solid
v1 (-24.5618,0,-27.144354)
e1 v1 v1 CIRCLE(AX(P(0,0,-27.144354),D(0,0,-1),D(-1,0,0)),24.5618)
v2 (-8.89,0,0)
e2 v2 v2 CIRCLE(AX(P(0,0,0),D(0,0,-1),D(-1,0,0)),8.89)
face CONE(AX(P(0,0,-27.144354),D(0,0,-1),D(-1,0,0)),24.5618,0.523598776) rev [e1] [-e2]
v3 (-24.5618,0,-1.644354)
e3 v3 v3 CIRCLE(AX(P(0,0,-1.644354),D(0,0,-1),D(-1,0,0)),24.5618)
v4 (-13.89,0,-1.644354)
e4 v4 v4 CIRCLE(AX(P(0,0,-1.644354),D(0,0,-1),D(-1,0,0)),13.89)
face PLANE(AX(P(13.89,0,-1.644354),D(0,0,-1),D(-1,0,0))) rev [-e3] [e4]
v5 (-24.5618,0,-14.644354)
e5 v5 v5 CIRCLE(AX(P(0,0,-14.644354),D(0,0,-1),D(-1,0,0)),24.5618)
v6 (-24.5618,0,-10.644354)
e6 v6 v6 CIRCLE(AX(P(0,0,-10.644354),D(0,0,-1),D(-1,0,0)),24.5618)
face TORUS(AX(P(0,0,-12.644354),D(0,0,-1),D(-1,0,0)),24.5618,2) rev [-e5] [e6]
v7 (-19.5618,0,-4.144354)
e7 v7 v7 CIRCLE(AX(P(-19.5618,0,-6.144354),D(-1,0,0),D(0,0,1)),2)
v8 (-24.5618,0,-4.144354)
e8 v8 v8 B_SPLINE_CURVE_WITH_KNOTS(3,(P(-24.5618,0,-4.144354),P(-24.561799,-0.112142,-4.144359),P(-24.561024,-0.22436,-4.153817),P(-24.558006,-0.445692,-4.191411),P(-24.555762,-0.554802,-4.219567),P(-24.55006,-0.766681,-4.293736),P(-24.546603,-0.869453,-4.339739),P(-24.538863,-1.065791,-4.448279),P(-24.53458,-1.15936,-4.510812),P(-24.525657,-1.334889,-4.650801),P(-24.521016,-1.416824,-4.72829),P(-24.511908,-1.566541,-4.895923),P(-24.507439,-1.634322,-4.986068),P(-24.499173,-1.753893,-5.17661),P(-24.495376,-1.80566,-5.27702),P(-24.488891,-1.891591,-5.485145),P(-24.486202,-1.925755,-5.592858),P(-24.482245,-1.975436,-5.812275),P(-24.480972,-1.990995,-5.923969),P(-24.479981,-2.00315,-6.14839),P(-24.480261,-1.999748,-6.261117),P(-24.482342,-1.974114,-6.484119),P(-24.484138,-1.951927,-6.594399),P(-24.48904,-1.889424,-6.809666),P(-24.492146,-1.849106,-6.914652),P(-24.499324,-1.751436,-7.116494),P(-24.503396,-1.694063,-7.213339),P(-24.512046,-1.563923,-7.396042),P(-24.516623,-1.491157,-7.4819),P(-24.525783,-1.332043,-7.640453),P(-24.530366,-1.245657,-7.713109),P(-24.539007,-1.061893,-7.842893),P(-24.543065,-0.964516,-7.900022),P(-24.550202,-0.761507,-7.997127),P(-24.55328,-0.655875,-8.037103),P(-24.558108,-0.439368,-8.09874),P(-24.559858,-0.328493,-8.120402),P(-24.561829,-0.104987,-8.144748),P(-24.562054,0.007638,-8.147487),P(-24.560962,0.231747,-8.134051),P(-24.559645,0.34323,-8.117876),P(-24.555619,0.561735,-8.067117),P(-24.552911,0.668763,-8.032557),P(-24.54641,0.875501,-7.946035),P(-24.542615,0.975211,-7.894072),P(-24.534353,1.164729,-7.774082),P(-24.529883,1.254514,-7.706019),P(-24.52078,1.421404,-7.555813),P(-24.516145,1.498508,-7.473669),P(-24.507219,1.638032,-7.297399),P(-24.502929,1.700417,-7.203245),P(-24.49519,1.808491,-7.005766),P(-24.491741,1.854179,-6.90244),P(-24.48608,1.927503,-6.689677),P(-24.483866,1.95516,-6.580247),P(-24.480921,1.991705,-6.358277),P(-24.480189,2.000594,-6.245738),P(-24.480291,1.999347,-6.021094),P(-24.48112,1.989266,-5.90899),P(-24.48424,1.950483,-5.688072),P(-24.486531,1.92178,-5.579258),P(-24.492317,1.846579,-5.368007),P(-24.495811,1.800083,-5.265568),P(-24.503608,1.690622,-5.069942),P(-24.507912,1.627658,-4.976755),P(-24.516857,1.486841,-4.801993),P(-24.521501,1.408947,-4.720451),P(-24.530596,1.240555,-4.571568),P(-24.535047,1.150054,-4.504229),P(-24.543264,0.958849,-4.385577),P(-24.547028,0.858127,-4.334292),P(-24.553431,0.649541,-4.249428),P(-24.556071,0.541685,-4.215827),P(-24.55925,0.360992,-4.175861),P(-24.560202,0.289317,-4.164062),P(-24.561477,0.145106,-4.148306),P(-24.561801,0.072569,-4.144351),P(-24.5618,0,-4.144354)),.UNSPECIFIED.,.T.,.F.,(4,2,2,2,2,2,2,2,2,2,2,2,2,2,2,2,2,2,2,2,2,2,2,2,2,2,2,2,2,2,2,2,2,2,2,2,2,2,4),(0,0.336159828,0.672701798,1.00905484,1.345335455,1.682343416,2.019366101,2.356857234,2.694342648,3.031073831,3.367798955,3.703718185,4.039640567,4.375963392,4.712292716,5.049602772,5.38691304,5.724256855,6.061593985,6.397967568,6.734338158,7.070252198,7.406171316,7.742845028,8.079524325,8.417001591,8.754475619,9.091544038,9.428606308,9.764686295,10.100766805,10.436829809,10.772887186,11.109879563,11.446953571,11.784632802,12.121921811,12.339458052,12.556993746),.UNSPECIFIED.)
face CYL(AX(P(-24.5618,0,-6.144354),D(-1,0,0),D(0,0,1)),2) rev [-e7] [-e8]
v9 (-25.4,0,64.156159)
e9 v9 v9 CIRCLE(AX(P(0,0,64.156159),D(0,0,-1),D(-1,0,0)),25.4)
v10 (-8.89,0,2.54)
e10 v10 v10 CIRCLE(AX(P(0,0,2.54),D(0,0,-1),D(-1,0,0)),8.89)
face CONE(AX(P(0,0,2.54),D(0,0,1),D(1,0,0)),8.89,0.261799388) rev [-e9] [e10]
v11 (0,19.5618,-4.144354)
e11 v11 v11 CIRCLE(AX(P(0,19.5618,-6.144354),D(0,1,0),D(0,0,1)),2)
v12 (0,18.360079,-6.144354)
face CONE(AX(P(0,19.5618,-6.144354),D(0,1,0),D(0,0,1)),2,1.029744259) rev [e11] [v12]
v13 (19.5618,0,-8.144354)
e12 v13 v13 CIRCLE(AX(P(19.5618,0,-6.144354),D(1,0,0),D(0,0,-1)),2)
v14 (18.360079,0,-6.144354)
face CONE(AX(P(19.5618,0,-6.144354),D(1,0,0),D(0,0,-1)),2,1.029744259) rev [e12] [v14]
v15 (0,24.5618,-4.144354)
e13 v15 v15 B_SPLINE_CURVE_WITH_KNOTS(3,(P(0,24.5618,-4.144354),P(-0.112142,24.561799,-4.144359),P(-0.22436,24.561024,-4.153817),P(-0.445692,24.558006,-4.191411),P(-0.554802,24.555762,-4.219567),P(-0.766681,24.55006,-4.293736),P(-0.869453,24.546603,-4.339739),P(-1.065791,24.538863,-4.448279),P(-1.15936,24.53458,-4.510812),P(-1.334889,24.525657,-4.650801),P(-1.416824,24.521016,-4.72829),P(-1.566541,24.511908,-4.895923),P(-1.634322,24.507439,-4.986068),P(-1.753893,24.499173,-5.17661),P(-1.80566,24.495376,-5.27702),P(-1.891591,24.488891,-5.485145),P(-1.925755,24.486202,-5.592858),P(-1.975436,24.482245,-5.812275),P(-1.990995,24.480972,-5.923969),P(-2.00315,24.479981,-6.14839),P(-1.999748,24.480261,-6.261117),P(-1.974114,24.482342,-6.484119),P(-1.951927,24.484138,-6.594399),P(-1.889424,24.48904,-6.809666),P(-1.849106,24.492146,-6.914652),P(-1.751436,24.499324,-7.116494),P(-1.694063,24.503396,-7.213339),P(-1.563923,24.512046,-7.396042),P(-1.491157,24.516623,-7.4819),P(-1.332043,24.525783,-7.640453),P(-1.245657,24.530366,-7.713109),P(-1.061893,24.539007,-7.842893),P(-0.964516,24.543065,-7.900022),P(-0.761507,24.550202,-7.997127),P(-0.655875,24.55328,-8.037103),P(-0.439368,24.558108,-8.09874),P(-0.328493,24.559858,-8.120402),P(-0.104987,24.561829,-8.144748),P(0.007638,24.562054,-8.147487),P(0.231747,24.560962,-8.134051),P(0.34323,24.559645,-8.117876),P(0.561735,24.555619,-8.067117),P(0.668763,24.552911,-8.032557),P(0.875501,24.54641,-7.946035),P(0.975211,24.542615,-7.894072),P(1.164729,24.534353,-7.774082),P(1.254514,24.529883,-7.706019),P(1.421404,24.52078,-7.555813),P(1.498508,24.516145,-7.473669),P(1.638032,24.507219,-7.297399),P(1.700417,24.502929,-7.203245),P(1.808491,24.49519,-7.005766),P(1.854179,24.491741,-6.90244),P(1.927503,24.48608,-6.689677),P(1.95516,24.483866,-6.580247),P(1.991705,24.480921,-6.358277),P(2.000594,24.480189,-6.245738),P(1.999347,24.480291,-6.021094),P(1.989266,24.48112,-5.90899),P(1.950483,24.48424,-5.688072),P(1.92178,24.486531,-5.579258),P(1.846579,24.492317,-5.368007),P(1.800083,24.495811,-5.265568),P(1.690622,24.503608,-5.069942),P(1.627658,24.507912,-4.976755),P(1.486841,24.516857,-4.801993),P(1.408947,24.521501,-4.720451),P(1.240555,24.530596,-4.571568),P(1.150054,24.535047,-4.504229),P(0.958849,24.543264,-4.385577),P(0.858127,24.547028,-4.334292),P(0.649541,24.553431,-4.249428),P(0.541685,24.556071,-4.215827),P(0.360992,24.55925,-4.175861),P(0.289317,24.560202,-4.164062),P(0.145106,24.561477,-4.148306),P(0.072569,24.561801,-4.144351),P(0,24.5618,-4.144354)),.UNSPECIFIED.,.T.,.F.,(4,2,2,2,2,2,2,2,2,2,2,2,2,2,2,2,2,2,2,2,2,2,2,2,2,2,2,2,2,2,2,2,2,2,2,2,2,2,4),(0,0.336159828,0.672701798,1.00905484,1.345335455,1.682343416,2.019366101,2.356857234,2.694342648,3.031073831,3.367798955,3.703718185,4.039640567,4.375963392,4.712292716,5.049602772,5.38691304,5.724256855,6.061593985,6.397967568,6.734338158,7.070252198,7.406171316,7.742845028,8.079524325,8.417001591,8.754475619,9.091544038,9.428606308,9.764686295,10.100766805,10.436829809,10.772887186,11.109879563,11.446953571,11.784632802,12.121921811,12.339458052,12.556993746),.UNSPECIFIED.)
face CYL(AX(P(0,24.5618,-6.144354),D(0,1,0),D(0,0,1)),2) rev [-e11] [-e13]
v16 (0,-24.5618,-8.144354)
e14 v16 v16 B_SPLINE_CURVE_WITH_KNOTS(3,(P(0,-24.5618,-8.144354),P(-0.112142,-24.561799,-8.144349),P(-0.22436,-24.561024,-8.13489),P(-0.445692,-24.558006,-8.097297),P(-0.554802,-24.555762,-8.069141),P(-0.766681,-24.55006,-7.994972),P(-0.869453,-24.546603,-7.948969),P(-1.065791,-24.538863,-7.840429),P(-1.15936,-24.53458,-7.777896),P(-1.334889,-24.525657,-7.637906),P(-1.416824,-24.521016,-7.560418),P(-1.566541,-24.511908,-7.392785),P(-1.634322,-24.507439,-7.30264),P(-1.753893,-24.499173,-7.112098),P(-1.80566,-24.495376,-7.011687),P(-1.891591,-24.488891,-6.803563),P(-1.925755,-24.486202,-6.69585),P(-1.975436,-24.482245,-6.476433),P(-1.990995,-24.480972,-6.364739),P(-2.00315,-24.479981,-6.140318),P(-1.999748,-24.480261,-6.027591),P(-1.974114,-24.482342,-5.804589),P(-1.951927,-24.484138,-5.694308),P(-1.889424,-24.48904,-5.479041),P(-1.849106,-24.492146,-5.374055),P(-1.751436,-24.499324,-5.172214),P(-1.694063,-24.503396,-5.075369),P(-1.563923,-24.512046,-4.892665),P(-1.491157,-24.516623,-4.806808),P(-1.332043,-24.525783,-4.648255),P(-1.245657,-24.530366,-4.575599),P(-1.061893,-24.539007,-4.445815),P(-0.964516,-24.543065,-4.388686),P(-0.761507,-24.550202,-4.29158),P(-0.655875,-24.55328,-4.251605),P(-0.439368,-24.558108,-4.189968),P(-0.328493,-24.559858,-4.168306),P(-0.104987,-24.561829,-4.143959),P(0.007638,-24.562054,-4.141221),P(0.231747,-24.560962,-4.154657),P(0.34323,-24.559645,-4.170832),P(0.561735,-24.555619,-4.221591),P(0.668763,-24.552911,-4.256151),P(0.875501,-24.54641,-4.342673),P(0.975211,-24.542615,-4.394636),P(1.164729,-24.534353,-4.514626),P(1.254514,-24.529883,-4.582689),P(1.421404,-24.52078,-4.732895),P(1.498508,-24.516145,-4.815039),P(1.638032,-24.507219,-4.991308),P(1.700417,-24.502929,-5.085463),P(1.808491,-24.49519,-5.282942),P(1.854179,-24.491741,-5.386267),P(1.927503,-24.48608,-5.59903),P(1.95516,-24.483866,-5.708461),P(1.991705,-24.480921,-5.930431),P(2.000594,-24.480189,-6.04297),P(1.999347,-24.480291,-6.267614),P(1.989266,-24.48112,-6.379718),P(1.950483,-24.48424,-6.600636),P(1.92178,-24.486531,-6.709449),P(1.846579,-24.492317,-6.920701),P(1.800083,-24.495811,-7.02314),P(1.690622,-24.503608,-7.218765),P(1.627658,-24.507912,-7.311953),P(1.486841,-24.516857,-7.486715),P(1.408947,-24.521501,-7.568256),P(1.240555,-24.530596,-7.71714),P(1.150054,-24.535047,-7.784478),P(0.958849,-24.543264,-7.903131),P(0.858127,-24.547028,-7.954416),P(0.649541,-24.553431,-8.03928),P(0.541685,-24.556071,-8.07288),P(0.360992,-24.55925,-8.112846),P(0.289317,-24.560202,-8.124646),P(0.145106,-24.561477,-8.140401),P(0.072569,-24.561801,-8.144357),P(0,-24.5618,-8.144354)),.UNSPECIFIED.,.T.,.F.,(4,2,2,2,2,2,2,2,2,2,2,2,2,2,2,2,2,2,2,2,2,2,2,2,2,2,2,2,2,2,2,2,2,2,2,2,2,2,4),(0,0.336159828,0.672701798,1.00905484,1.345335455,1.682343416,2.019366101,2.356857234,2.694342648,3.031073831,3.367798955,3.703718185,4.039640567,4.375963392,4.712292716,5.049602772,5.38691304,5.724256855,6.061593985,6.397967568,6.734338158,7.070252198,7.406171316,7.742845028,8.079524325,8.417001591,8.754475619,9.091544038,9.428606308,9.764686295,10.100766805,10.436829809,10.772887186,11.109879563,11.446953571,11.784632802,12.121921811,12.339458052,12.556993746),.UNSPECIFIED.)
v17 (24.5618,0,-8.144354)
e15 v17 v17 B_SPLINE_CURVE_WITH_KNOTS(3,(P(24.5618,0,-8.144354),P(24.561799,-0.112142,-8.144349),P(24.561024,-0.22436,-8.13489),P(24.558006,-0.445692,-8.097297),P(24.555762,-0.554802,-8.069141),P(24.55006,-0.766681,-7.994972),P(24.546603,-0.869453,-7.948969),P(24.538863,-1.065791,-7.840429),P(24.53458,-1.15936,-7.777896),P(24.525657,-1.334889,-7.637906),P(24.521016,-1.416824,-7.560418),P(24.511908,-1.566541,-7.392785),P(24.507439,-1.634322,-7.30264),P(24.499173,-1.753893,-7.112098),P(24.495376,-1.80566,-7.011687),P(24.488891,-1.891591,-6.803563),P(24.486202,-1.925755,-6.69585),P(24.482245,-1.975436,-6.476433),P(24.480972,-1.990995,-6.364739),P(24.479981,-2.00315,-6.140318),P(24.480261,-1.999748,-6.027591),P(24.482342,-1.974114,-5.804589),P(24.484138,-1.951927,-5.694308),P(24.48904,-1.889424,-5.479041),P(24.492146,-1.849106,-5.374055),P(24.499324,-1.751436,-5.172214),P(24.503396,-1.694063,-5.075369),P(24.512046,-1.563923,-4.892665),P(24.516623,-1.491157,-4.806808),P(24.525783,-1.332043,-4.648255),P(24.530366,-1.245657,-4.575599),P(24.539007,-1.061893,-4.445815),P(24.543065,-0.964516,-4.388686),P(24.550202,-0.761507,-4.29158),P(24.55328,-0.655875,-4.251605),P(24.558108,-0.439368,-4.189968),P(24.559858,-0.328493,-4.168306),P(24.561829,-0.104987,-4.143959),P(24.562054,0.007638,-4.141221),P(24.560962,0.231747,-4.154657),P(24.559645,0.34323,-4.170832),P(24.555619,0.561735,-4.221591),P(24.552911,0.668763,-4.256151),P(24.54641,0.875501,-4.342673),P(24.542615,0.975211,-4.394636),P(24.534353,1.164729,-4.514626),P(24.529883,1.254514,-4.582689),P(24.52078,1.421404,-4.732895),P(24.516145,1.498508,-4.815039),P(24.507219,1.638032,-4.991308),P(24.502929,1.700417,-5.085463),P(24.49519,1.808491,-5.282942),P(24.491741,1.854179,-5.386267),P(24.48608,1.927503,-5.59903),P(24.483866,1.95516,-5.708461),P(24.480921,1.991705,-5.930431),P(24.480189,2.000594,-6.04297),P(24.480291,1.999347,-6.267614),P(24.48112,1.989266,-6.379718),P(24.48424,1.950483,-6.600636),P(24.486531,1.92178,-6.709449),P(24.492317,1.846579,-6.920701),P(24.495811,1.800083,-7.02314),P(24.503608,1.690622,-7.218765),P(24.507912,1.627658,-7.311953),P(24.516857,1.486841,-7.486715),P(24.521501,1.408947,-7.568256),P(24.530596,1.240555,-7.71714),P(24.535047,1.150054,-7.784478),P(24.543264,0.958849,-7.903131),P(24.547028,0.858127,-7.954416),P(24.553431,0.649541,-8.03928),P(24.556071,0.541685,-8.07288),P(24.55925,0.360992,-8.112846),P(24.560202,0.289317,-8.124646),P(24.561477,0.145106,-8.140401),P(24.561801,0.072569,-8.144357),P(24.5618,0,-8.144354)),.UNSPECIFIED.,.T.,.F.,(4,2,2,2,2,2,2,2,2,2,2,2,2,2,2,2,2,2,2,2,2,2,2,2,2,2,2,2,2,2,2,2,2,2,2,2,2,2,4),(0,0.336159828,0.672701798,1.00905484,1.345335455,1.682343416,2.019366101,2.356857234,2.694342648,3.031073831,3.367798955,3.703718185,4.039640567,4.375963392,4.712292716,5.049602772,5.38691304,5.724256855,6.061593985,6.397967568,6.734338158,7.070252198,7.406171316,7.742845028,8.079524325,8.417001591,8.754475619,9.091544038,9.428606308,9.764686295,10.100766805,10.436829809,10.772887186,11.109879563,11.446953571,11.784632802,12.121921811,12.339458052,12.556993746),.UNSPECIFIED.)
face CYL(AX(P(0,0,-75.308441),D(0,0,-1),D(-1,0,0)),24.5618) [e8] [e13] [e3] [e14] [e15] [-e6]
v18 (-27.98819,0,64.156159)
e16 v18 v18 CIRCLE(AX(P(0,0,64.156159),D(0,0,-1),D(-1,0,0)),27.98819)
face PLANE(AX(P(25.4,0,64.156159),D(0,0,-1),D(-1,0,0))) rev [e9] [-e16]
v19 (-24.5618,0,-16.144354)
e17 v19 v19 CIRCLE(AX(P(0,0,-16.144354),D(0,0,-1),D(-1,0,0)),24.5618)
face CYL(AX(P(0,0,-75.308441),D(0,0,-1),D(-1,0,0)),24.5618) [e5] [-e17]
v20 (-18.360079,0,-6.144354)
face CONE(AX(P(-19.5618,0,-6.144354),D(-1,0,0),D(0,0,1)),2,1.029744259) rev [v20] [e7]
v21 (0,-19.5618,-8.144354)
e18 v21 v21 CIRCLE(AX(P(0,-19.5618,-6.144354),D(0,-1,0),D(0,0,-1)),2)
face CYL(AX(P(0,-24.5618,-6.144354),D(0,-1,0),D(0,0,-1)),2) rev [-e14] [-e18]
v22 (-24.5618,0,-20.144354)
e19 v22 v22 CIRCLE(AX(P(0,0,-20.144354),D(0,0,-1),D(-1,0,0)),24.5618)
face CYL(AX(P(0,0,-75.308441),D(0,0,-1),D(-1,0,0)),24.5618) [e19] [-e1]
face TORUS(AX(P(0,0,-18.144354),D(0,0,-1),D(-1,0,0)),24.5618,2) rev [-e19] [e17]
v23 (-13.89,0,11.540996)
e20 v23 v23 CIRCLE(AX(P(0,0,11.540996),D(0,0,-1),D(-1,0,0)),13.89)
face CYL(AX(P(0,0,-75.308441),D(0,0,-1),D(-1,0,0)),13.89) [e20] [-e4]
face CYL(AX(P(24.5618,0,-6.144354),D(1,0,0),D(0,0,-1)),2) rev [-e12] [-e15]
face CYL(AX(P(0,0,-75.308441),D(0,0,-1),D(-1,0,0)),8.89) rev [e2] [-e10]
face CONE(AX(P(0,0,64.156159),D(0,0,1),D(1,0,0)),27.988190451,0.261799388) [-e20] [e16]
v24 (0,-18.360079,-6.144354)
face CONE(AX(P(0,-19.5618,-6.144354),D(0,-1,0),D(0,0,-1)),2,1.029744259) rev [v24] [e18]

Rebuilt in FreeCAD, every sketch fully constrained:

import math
import FreeCAD as App
import Part
import Sketcher

V = App.Vector
Q = App.Units.Quantity

doc = App.newDocument("Part")
body = doc.addObject("PartDesign::Body", "Body")

sketch1 = body.newObject("Sketcher::SketchObject", "Sketch")
sketch1.AttachmentSupport = (doc.getObject("XZ_Plane"), [""])
sketch1.MapMode = "FlatFace"
sketch1.addGeometry(Part.LineSegment(V(24.5618, -27.144354, 0), V(8.89, 0, 0)), False)
sketch1.addGeometry(Part.LineSegment(V(8.89, 0, 0), V(8.89, 2.54, 0)), False)
sketch1.addGeometry(Part.LineSegment(V(8.89, 2.54, 0), V(25.4, 64.156159, 0)), False)
sketch1.addGeometry(Part.LineSegment(V(25.4, 64.156159, 0), V(27.98819, 64.156159, 0)), False)
sketch1.addGeometry(Part.LineSegment(V(27.98819, 64.156159, 0), V(13.89, 11.540996, 0)), False)
sketch1.addGeometry(Part.LineSegment(V(13.89, 11.540996, 0), V(13.89, -1.644354, 0)), False)
sketch1.addGeometry(Part.LineSegment(V(13.89, -1.644354, 0), V(24.5618, -1.644354, 0)), False)
sketch1.addGeometry(Part.LineSegment(V(24.5618, -1.644354, 0), V(24.5618, -10.644354, 0)), False)
sketch1.addGeometry(Part.ArcOfCircle(Part.Circle(V(24.5618, -12.644354, 0), V(0, 0, 1), 2), math.radians(90), math.radians(270)), False)
sketch1.addGeometry(Part.LineSegment(V(24.5618, -14.644354, 0), V(24.5618, -16.144354, 0)), False)
sketch1.addGeometry(Part.ArcOfCircle(Part.Circle(V(24.5618, -18.144354, 0), V(0, 0, 1), 2), math.radians(90), math.radians(270)), False)
sketch1.addGeometry(Part.LineSegment(V(24.5618, -20.144354, 0), V(24.5618, -27.144354, 0)), False)
sketch1.addConstraint(Sketcher.Constraint("Coincident", 0, 2, 1, 1))
sketch1.addConstraint(Sketcher.Constraint("Coincident", 1, 2, 2, 1))
sketch1.addConstraint(Sketcher.Constraint("Coincident", 2, 2, 3, 1))
sketch1.addConstraint(Sketcher.Constraint("Coincident", 3, 2, 4, 1))
sketch1.addConstraint(Sketcher.Constraint("Coincident", 4, 2, 5, 1))
sketch1.addConstraint(Sketcher.Constraint("Coincident", 5, 2, 6, 1))
sketch1.addConstraint(Sketcher.Constraint("Coincident", 6, 2, 7, 1))
sketch1.addConstraint(Sketcher.Constraint("Coincident", 7, 2, 8, 1))
sketch1.addConstraint(Sketcher.Constraint("Coincident", 8, 2, 9, 1))
sketch1.addConstraint(Sketcher.Constraint("Coincident", 9, 2, 10, 1))
sketch1.addConstraint(Sketcher.Constraint("Coincident", 10, 2, 11, 1))
sketch1.addConstraint(Sketcher.Constraint("Coincident", 11, 2, 0, 1))
sketch1.addConstraint(Sketcher.Constraint("Vertical", 1))
sketch1.addConstraint(Sketcher.Constraint("Horizontal", 3))
sketch1.addConstraint(Sketcher.Constraint("Vertical", 5))
sketch1.addConstraint(Sketcher.Constraint("Horizontal", 6))
sketch1.addConstraint(Sketcher.Constraint("Vertical", 7))
sketch1.addConstraint(Sketcher.Constraint("Vertical", 9))
sketch1.addConstraint(Sketcher.Constraint("Vertical", 11))
sketch1.addConstraint(Sketcher.Constraint("Equal", 8, 10))
sketch1.addConstraint(Sketcher.Constraint("PointOnObject", 0, 2, -1))
sketch1.addConstraint(Sketcher.Constraint("Parallel", 2, 4))
sketch1.addConstraint(Sketcher.Constraint("Vertical", 8, 3, 10, 3))
sketch1.addConstraint(Sketcher.Constraint("Vertical", 10, 3, 6, 2))
sketch1.addConstraint(Sketcher.Constraint("Vertical", 7, 2, 8, 2))
sketch1.addConstraint(Sketcher.Constraint("Vertical", 9, 2, 10, 2))
sketch1.addConstraint(Sketcher.Constraint("Radius", 8, Q("2 mm")))
sketch1.addConstraint(Sketcher.Constraint("DistanceY", 7, 2, 7, 1, Q("9 mm")))
sketch1.addConstraint(Sketcher.Constraint("DistanceY", 11, 2, 11, 1, Q("7 mm")))
sketch1.addConstraint(Sketcher.Constraint("Angle", 0, Q("120 deg")))
sketch1.addConstraint(Sketcher.Constraint("Angle", 2, Q("75 deg")))
sketch1.addConstraint(Sketcher.Constraint("DistanceY", 9, 2, 9, 1, Q("1.5 mm")))
sketch1.addConstraint(Sketcher.Constraint("DistanceX", 1, 2, 4, 2, Q("5 mm")))
sketch1.addConstraint(Sketcher.Constraint("DistanceY", 1, 1, 1, 2, Q("2.54 mm")))
sketch1.addConstraint(Sketcher.Constraint("DistanceX", -1, 1, 2, 2, Q("25.4 mm")))
sketch1.addConstraint(Sketcher.Constraint("DistanceX", -1, 1, 0, 2, Q("8.89 mm")))
sketch1.addConstraint(Sketcher.Constraint("DistanceX", 6, 1, 6, 2, Q("10.6718 mm")))
sketch1.addConstraint(Sketcher.Constraint("DistanceX", 3, 1, 3, 2, Q("2.58819 mm")))
revolution = body.newObject("PartDesign::Revolution", "Revolution")
revolution.Profile = sketch1
revolution.ReferenceAxis = (sketch1, ["V_Axis"])
revolution.Angle = 360

sketch2 = body.newObject("Sketcher::SketchObject", "Sketch001")
sketch2.AttachmentSupport = (doc.getObject("YZ_Plane"), [""])
sketch2.MapMode = "FlatFace"
sketch2.AttachmentOffset = App.Placement(V(0, 0, -24.5618), App.Rotation())
sketch2.addGeometry(Part.Circle(V(0, -6.144354, 0), V(0, 0, 1), 2), False)
sketch2.addConstraint(Sketcher.Constraint("PointOnObject", 0, 3, -2))
sketch2.addConstraint(Sketcher.Constraint("Diameter", 0, Q("4 mm")))
sketch2.addConstraint(Sketcher.Constraint("DistanceY", 0, 3, -1, 1, Q("6.144354 mm")))
doc.recompute()
hole = body.newObject("PartDesign::Hole", "Hole")
hole.Profile = sketch2
hole.ThreadType = "None"
hole.Diameter = 4
hole.DepthType = "Dimension"
hole.Depth = 5
hole.DrillPoint = "Angled"
hole.DrillPointAngle = 118
hole.Reversed = True

sketch3 = body.newObject("Sketcher::SketchObject", "Sketch002")
sketch3.AttachmentSupport = (doc.getObject("YZ_Plane"), [""])
sketch3.MapMode = "FlatFace"
sketch3.addGeometry(Part.Circle(V(0, 0, 0), V(0, 0, 1), 2), False)
sketch3.addConstraint(Sketcher.Constraint("Coincident", 0, 3, -1, 1))
sketch3.addConstraint(Sketcher.Constraint("Diameter", 0, Q("4 mm")))
doc.recompute()
hole2 = body.newObject("PartDesign::Hole", "Hole001")
hole2.Profile = sketch3
hole2.ThreadType = "None"
hole2.Diameter = 4
hole2.DepthType = "Dimension"
hole2.Depth = 5
hole2.DrillPoint = "Angled"
hole2.DrillPointAngle = 118
hole2.Reversed = True

sketch4 = body.newObject("Sketcher::SketchObject", "Sketch003")
sketch4.AttachmentSupport = (doc.getObject("XZ_Plane"), [""])
sketch4.MapMode = "FlatFace"
sketch4.AttachmentOffset = App.Placement(V(0, 0, -24.5618), App.Rotation())
sketch4.addGeometry(Part.Circle(V(0, -6.144354, 0), V(0, 0, 1), 2), False)
sketch4.addConstraint(Sketcher.Constraint("PointOnObject", 0, 3, -2))
sketch4.addConstraint(Sketcher.Constraint("Diameter", 0, Q("4 mm")))
sketch4.addConstraint(Sketcher.Constraint("DistanceY", 0, 3, -1, 1, Q("6.144354 mm")))
doc.recompute()
hole3 = body.newObject("PartDesign::Hole", "Hole002")
hole3.Profile = sketch4
hole3.ThreadType = "None"
hole3.Diameter = 4
hole3.DepthType = "Dimension"
hole3.Depth = 5
hole3.DrillPoint = "Angled"
hole3.DrillPointAngle = 118
hole3.Reversed = True

sketch5 = body.newObject("Sketcher::SketchObject", "Sketch004")
sketch5.AttachmentSupport = (doc.getObject("YZ_Plane"), [""])
sketch5.MapMode = "FlatFace"
sketch5.AttachmentOffset = App.Placement(V(0, 0, 24.5618), App.Rotation())
sketch5.addGeometry(Part.Circle(V(0, -6.144354, 0), V(0, 0, 1), 2), False)
sketch5.addConstraint(Sketcher.Constraint("PointOnObject", 0, 3, -2))
sketch5.addConstraint(Sketcher.Constraint("Diameter", 0, Q("4 mm")))
sketch5.addConstraint(Sketcher.Constraint("DistanceY", 0, 3, -1, 1, Q("6.144354 mm")))
doc.recompute()
hole4 = body.newObject("PartDesign::Hole", "Hole003")
hole4.Profile = sketch5
hole4.ThreadType = "None"
hole4.Diameter = 4
hole4.DepthType = "Dimension"
hole4.Depth = 5
hole4.DrillPoint = "Angled"
hole4.DrillPointAngle = 118

sketch6 = body.newObject("Sketcher::SketchObject", "Sketch005")
sketch6.AttachmentSupport = (doc.getObject("XZ_Plane"), [""])
sketch6.MapMode = "FlatFace"
sketch6.AttachmentOffset = App.Placement(V(0, 0, 24.5618), App.Rotation())
sketch6.addGeometry(Part.Circle(V(0, -6.144354, 0), V(0, 0, 1), 2), False)
sketch6.addConstraint(Sketcher.Constraint("PointOnObject", 0, 3, -2))
sketch6.addConstraint(Sketcher.Constraint("Diameter", 0, Q("4 mm")))
sketch6.addConstraint(Sketcher.Constraint("DistanceY", 0, 3, -1, 1, Q("6.144354 mm")))
doc.recompute()
hole5 = body.newObject("PartDesign::Hole", "Hole004")
hole5.Profile = sketch6
hole5.ThreadType = "None"
hole5.Diameter = 4
hole5.DepthType = "Dimension"
hole5.Depth = 5
hole5.DrillPoint = "Angled"
hole5.DrillPointAngle = 118

doc.recompute()
